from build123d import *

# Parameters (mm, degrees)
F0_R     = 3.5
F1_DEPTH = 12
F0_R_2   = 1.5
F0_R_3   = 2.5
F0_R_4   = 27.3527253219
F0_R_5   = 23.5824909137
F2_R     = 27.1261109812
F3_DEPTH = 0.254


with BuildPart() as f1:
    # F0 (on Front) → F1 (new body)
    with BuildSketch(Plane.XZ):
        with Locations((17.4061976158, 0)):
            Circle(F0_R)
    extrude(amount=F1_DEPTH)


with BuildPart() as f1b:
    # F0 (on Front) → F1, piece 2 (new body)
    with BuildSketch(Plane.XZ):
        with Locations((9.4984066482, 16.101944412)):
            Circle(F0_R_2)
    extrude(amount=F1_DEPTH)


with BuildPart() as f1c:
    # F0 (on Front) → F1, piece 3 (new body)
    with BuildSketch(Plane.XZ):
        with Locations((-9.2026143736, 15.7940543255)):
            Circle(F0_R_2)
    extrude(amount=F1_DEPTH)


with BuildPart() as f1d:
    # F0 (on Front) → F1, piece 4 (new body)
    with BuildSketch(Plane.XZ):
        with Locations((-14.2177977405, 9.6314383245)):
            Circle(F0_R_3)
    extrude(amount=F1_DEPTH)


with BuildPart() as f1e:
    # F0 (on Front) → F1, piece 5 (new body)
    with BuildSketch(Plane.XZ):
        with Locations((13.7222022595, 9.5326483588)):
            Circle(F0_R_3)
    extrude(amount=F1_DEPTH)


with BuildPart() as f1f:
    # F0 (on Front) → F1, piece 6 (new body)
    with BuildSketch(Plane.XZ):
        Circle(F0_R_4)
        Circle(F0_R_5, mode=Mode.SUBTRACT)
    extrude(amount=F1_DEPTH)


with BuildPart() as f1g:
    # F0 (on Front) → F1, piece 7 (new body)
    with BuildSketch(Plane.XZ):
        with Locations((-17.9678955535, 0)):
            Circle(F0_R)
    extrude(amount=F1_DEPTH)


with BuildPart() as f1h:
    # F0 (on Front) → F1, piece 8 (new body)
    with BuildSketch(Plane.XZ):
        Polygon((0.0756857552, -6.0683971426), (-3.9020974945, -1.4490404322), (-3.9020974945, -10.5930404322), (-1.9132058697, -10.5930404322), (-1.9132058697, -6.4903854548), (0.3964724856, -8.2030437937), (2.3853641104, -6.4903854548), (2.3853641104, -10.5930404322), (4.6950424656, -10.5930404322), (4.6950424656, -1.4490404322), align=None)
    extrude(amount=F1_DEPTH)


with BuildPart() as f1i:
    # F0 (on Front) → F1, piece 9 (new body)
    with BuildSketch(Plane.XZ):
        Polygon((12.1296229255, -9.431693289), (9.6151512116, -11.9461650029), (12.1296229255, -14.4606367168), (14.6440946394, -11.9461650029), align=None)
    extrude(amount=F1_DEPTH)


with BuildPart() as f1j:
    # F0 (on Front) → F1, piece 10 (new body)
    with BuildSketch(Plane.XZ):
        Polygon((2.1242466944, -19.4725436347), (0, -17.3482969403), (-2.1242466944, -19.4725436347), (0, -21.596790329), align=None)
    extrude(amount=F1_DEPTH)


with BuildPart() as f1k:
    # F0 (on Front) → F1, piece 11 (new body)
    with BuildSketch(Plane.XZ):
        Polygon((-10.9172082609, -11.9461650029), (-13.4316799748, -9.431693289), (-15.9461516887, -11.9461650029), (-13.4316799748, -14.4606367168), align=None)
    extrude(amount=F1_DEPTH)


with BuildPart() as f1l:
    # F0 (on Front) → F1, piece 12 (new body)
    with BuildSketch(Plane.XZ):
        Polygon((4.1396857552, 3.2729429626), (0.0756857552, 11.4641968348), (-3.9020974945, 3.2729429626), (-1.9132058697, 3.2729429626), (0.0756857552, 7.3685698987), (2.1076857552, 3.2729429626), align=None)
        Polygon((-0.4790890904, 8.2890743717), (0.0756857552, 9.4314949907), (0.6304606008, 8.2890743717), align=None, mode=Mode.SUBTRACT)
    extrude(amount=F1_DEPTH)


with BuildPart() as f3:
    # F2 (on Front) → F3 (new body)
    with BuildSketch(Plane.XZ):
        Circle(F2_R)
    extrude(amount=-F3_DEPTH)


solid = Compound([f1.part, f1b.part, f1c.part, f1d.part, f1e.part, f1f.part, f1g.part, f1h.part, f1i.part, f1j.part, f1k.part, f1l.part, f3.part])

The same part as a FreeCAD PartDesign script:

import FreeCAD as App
import Part
import Sketcher
Q = App.Units.Quantity


def add_polygon(sketch, points):
    """Adds a closed chain of lines whose ends are joined by coincident constraints."""
    first, n = sketch.GeometryCount, len(points)
    for a, b in zip(points, points[1:] + points[:1]):
        sketch.addGeometry(Part.LineSegment(App.Vector(*a, 0), App.Vector(*b, 0)), False)
    for i in range(n):
        sketch.addConstraint(Sketcher.Constraint("Coincident", first + i, 2, first + (i + 1) % n, 1))

doc = App.newDocument("Part")
body = doc.addObject("PartDesign::Body", "Body")

# Sketch on XZ plane
sketch1 = body.newObject("Sketcher::SketchObject", "Sketch")
sketch1.AttachmentSupport = (doc.getObject("XZ_Plane"), [""])
sketch1.MapMode = "FlatFace"
sketch1.addGeometry(Part.Circle(App.Vector(17.4, 0, 0), App.Vector(0, 0, 1), 3.5), False)
sketch1.addConstraint(Sketcher.Constraint("PointOnObject", 0, 3, -1))
sketch1.addConstraint(Sketcher.Constraint("Diameter", 0, 7.0))
sketch1.addConstraint(Sketcher.Constraint("DistanceX", -1, 1, 0, 3, 17.406198))
pad1 = body.newObject("PartDesign::Pad", "Pad")
pad1.Profile = sketch1
pad1.Length = 12
body2 = doc.addObject("PartDesign::Body", "Body001")

# Sketch on XZ plane
sketch2 = body2.newObject("Sketcher::SketchObject", "Sketch001")
sketch2.AttachmentSupport = (doc.getObject("XZ_Plane001"), [""])
sketch2.MapMode = "FlatFace"
sketch2.addGeometry(Part.Circle(App.Vector(9.5, 16.1, 0), App.Vector(0, 0, 1), 1.5), False)
sketch2.addConstraint(Sketcher.Constraint("Diameter", 0, 3.0))
sketch2.addConstraint(Sketcher.Constraint("DistanceX", -1, 1, 0, 3, 9.498407))
sketch2.addConstraint(Sketcher.Constraint("DistanceY", -1, 1, 0, 3, 16.101944))
pad2 = body2.newObject("PartDesign::Pad", "Pad001")
pad2.Profile = sketch2
pad2.Length = 12
body3 = doc.addObject("PartDesign::Body", "Body002")

# Sketch on XZ plane
sketch3 = body3.newObject("Sketcher::SketchObject", "Sketch002")
sketch3.AttachmentSupport = (doc.getObject("XZ_Plane002"), [""])
sketch3.MapMode = "FlatFace"
sketch3.addGeometry(Part.Circle(App.Vector(-9.2, 15.8, 0), App.Vector(0, 0, 1), 1.5), False)
sketch3.addConstraint(Sketcher.Constraint("Diameter", 0, 3.0))
sketch3.addConstraint(Sketcher.Constraint("DistanceX", 0, 3, -1, 1, 9.202614))
sketch3.addConstraint(Sketcher.Constraint("DistanceY", -1, 1, 0, 3, 15.794054))
pad3 = body3.newObject("PartDesign::Pad", "Pad002")
pad3.Profile = sketch3
pad3.Length = 12
body4 = doc.addObject("PartDesign::Body", "Body003")

# Sketch on XZ plane
sketch4 = body4.newObject("Sketcher::SketchObject", "Sketch003")
sketch4.AttachmentSupport = (doc.getObject("XZ_Plane003"), [""])
sketch4.MapMode = "FlatFace"
sketch4.addGeometry(Part.Circle(App.Vector(-14.2, 9.6, 0), App.Vector(0, 0, 1), 2.5), False)
sketch4.addConstraint(Sketcher.Constraint("Diameter", 0, 5.0))
sketch4.addConstraint(Sketcher.Constraint("DistanceY", -1, 1, 0, 3, 9.631438))
sketch4.addConstraint(Sketcher.Constraint("DistanceX", 0, 3, -1, 1, 14.217798))
pad4 = body4.newObject("PartDesign::Pad", "Pad003")
pad4.Profile = sketch4
pad4.Length = 12
body5 = doc.addObject("PartDesign::Body", "Body004")

# Sketch on XZ plane
sketch5 = body5.newObject("Sketcher::SketchObject", "Sketch004")
sketch5.AttachmentSupport = (doc.getObject("XZ_Plane004"), [""])
sketch5.MapMode = "FlatFace"
sketch5.addGeometry(Part.Circle(App.Vector(13.7, 9.5, 0), App.Vector(0, 0, 1), 2.5), False)
sketch5.addConstraint(Sketcher.Constraint("Diameter", 0, 5.0))
sketch5.addConstraint(Sketcher.Constraint("DistanceY", -1, 1, 0, 3, 9.532648))
sketch5.addConstraint(Sketcher.Constraint("DistanceX", -1, 1, 0, 3, 13.722202))
pad5 = body5.newObject("PartDesign::Pad", "Pad004")
pad5.Profile = sketch5
pad5.Length = 12
body6 = doc.addObject("PartDesign::Body", "Body005")

# Sketch on XZ plane
sketch6 = body6.newObject("Sketcher::SketchObject", "Sketch005")
sketch6.AttachmentSupport = (doc.getObject("XZ_Plane005"), [""])
sketch6.MapMode = "FlatFace"
sketch6.addGeometry(Part.Circle(App.Vector(0, 0, 0), App.Vector(0, 0, 1), 27), False)
sketch6.addGeometry(Part.Circle(App.Vector(0, 0, 0), App.Vector(0, 0, 1), 24), False)
sketch6.addConstraint(Sketcher.Constraint("Coincident", 0, 3, -1, 1))
sketch6.addConstraint(Sketcher.Constraint("Coincident", 1, 3, -1, 1))
sketch6.addConstraint(Sketcher.Constraint("Diameter", 0, 54.705451))
sketch6.addConstraint(Sketcher.Constraint("Diameter", 1, 47.164982))
pad6 = body6.newObject("PartDesign::Pad", "Pad005")
pad6.Profile = sketch6
pad6.Length = 12
body7 = doc.addObject("PartDesign::Body", "Body006")

# Sketch on XZ plane
sketch7 = body7.newObject("Sketcher::SketchObject", "Sketch006")
sketch7.AttachmentSupport = (doc.getObject("XZ_Plane006"), [""])
sketch7.MapMode = "FlatFace"
sketch7.addGeometry(Part.Circle(App.Vector(-18, 0, 0), App.Vector(0, 0, 1), 3.5), False)
sketch7.addConstraint(Sketcher.Constraint("PointOnObject", 0, 3, -1))
sketch7.addConstraint(Sketcher.Constraint("Diameter", 0, 7.0))
sketch7.addConstraint(Sketcher.Constraint("DistanceX", 0, 3, -1, 1, 17.967896))
pad7 = body7.newObject("PartDesign::Pad", "Pad006")
pad7.Profile = sketch7
pad7.Length = 12
body8 = doc.addObject("PartDesign::Body", "Body007")

# Sketch on XZ plane
sketch8 = body8.newObject("Sketcher::SketchObject", "Sketch007")
sketch8.AttachmentSupport = (doc.getObject("XZ_Plane007"), [""])
sketch8.MapMode = "FlatFace"
add_polygon(sketch8, [(0.1, -6.1), (-3.9, -1.4), (-3.9, -10.6), (-1.9, -10.6), (-1.9, -6.5), (0.4, -8.2), (2.4, -6.5), (2.4, -10.6), (4.7, -10.6), (4.7, -1.4)])  # lines 0-9
sketch8.addConstraint(Sketcher.Constraint("Vertical", 1))
sketch8.addConstraint(Sketcher.Constraint("Horizontal", 2))
sketch8.addConstraint(Sketcher.Constraint("Vertical", 3))
sketch8.addConstraint(Sketcher.Constraint("Vertical", 6))
sketch8.addConstraint(Sketcher.Constraint("Horizontal", 7))
sketch8.addConstraint(Sketcher.Constraint("Vertical", 8))
sketch8.addConstraint(Sketcher.Constraint("Perpendicular", 0, 5))
sketch8.addConstraint(Sketcher.Constraint("Horizontal", 3, 2, 5, 2))
sketch8.addConstraint(Sketcher.Constraint("Horizontal", 2, 2, 6, 2))
sketch8.addConstraint(Sketcher.Constraint("Horizontal", 0, 2, 8, 2))
sketch8.addConstraint(Sketcher.Constraint("Angle", 9, Q("-135 deg")))
sketch8.addConstraint(Sketcher.Constraint("DistanceY", 1, 2, 1, 1, Q("0.36 in")))
sketch8.addConstraint(Sketcher.Constraint("Distance", 0, Q("0.24 in")))
sketch8.addConstraint(Sketcher.Constraint("DistanceX", 2, 1, 2, 2, 1.988892))
sketch8.addConstraint(Sketcher.Constraint("DistanceX", 7, 1, 7, 2, 2.309678))
sketch8.addConstraint(Sketcher.Constraint("Distance", 4, 2.87538))
sketch8.addConstraint(Sketcher.Constraint("Distance", 5, 2.624669))
sketch8.addConstraint(Sketcher.Constraint("DistanceY", 3, 1, 3, 2, 4.102655))
sketch8.addConstraint(Sketcher.Constraint("DistanceY", 0, 2, -1, 1, 1.44904))
sketch8.addConstraint(Sketcher.Constraint("DistanceX", 0, 2, -1, 1, 3.902097))
pad8 = body8.newObject("PartDesign::Pad", "Pad007")
pad8.Profile = sketch8
pad8.Length = 12
body9 = doc.addObject("PartDesign::Body", "Body008")

# Sketch on XZ plane
sketch9 = body9.newObject("Sketcher::SketchObject", "Sketch008")
sketch9.AttachmentSupport = (doc.getObject("XZ_Plane008"), [""])
sketch9.MapMode = "FlatFace"
add_polygon(sketch9, [(12.1, -9.4), (9.6, -11.9), (12.1, -14.5), (14.6, -11.9)])  # lines 0-3
sketch9.addConstraint(Sketcher.Constraint("Perpendicular", 0, 1))
sketch9.addConstraint(Sketcher.Constraint("Perpendicular", 1, 2))
sketch9.addConstraint(Sketcher.Constraint("Perpendicular", 2, 3))
sketch9.addConstraint(Sketcher.Constraint("Horizontal", 0, 2, 2, 2))
sketch9.addConstraint(Sketcher.Constraint("Vertical", 1, 2, 3, 2))
sketch9.addConstraint(Sketcher.Constraint("Distance", 0, Q("0.14 in")))
sketch9.addConstraint(Sketcher.Constraint("DistanceX", -1, 1, 0, 2, 9.615151))
sketch9.addConstraint(Sketcher.Constraint("DistanceY", 0, 2, -1, 1, 11.946165))
pad9 = body9.newObject("PartDesign::Pad", "Pad008")
pad9.Profile = sketch9
pad9.Length = 12
body10 = doc.addObject("PartDesign::Body", "Body009")

# Sketch on XZ plane
sketch10 = body10.newObject("Sketcher::SketchObject", "Sketch009")
sketch10.AttachmentSupport = (doc.getObject("XZ_Plane009"), [""])
sketch10.MapMode = "FlatFace"
add_polygon(sketch10, [(2.1, -19.5), (0, -17.3), (-2.1, -19.5), (0, -21.6)])  # lines 0-3
sketch10.addConstraint(Sketcher.Constraint("Symmetric", 1, 2, 3, 2, -2))
sketch10.addConstraint(Sketcher.Constraint("PointOnObject", 0, 2, -2))
sketch10.addConstraint(Sketcher.Constraint("PointOnObject", 2, 2, -2))
sketch10.addConstraint(Sketcher.Constraint("Perpendicular", 0, 1))
sketch10.addConstraint(Sketcher.Constraint("Perpendicular", 1, 2))
sketch10.addConstraint(Sketcher.Constraint("Distance", 0, 3.004138))
sketch10.addConstraint(Sketcher.Constraint("DistanceY", 2, 2, -1, 1, 21.59679))
pad10 = body10.newObject("PartDesign::Pad", "Pad009")
pad10.Profile = sketch10
pad10.Length = 12
body11 = doc.addObject("PartDesign::Body", "Body010")

# Sketch on XZ plane
sketch11 = body11.newObject("Sketcher::SketchObject", "Sketch010")
sketch11.AttachmentSupport = (doc.getObject("XZ_Plane010"), [""])
sketch11.MapMode = "FlatFace"
add_polygon(sketch11, [(-10.9, -11.9), (-13.4, -9.4), (-15.9, -11.9), (-13.4, -14.5)])  # lines 0-3
sketch11.addConstraint(Sketcher.Constraint("Perpendicular", 0, 1))
sketch11.addConstraint(Sketcher.Constraint("Perpendicular", 1, 2))
sketch11.addConstraint(Sketcher.Constraint("Perpendicular", 2, 3))
sketch11.addConstraint(Sketcher.Constraint("Horizontal", 1, 2, 3, 2))
sketch11.addConstraint(Sketcher.Constraint("Vertical", 0, 2, 2, 2))
sketch11.addConstraint(Sketcher.Constraint("Distance", 0, Q("0.14 in")))
sketch11.addConstraint(Sketcher.Constraint("DistanceX", 0, 2, -1, 1, 13.43168))
sketch11.addConstraint(Sketcher.Constraint("DistanceY", 0, 2, -1, 1, 9.431693))
pad11 = body11.newObject("PartDesign::Pad", "Pad010")
pad11.Profile = sketch11
pad11.Length = 12
body12 = doc.addObject("PartDesign::Body", "Body011")

# Sketch on XZ plane
sketch12 = body12.newObject("Sketcher::SketchObject", "Sketch011")
sketch12.AttachmentSupport = (doc.getObject("XZ_Plane011"), [""])
sketch12.MapMode = "FlatFace"
add_polygon(sketch12, [(4.1, 3.3), (0.1, 11.5), (-3.9, 3.3), (-1.9, 3.3), (0.1, 7.4), (2.1, 3.3)])  # lines 0-5
add_polygon(sketch12, [(0.6, 8.3), (-0.5, 8.3), (0.1, 9.4)])  # lines 6-8
sketch12.addConstraint(Sketcher.Constraint("Horizontal", 2))
sketch12.addConstraint(Sketcher.Constraint("Horizontal", 5))
sketch12.addConstraint(Sketcher.Constraint("Horizontal", 6))
sketch12.addConstraint(Sketcher.Constraint("Parallel", 1, 3))
sketch12.addConstraint(Sketcher.Constraint("Parallel", 0, 4))
sketch12.addConstraint(Sketcher.Constraint("Parallel", 3, 7))
sketch12.addConstraint(Sketcher.Constraint("Horizontal", 2, 2, 4, 2))
sketch12.addConstraint(Sketcher.Constraint("Vertical", 0, 2, 3, 2))
sketch12.addConstraint(Sketcher.Constraint("Vertical", 3, 2, 7, 2))
sketch12.addConstraint(Sketcher.Constraint("Equal", 7, 8))
sketch12.addConstraint(Sketcher.Constraint("DistanceX", 5, 1, 5, 2, Q("0.08 in")))
sketch12.addConstraint(Sketcher.Constraint("Distance", 0, Q("0.36 in")))
sketch12.addConstraint(Sketcher.Constraint("Distance", 4, Q("0.18 in")))
sketch12.addConstraint(Sketcher.Constraint("Distance", 7, Q("0.05 in")))
sketch12.addConstraint(Sketcher.Constraint("DistanceX", 2, 1, 2, 2, 1.988892))
sketch12.addConstraint(Sketcher.Constraint("DistanceY", 7, 2, 0, 2, 2.032702))
sketch12.addConstraint(Sketcher.Constraint("DistanceY", -1, 1, 3, 2, 7.36857))
sketch12.addConstraint(Sketcher.Constraint("DistanceX", 6, 2, -1, 1, 0.479089))
pad12 = body12.newObject("PartDesign::Pad", "Pad011")
pad12.Profile = sketch12
pad12.Length = 12
body13 = doc.addObject("PartDesign::Body", "Body012")

# Sketch on XZ plane
sketch13 = body13.newObject("Sketcher::SketchObject", "Sketch012")
sketch13.AttachmentSupport = (doc.getObject("XZ_Plane012"), [""])
sketch13.MapMode = "FlatFace"
sketch13.addGeometry(Part.Circle(App.Vector(0, 0, 0), App.Vector(0, 0, 1), 27), False)
sketch13.addConstraint(Sketcher.Constraint("Coincident", 0, 3, -1, 1))
sketch13.addConstraint(Sketcher.Constraint("Diameter", 0, 54.252222))
pad13 = body13.newObject("PartDesign::Pad", "Pad012")
pad13.Profile = sketch13
pad13.Length = Q("0.01 in")
pad13.Reversed = True

doc.recompute()
